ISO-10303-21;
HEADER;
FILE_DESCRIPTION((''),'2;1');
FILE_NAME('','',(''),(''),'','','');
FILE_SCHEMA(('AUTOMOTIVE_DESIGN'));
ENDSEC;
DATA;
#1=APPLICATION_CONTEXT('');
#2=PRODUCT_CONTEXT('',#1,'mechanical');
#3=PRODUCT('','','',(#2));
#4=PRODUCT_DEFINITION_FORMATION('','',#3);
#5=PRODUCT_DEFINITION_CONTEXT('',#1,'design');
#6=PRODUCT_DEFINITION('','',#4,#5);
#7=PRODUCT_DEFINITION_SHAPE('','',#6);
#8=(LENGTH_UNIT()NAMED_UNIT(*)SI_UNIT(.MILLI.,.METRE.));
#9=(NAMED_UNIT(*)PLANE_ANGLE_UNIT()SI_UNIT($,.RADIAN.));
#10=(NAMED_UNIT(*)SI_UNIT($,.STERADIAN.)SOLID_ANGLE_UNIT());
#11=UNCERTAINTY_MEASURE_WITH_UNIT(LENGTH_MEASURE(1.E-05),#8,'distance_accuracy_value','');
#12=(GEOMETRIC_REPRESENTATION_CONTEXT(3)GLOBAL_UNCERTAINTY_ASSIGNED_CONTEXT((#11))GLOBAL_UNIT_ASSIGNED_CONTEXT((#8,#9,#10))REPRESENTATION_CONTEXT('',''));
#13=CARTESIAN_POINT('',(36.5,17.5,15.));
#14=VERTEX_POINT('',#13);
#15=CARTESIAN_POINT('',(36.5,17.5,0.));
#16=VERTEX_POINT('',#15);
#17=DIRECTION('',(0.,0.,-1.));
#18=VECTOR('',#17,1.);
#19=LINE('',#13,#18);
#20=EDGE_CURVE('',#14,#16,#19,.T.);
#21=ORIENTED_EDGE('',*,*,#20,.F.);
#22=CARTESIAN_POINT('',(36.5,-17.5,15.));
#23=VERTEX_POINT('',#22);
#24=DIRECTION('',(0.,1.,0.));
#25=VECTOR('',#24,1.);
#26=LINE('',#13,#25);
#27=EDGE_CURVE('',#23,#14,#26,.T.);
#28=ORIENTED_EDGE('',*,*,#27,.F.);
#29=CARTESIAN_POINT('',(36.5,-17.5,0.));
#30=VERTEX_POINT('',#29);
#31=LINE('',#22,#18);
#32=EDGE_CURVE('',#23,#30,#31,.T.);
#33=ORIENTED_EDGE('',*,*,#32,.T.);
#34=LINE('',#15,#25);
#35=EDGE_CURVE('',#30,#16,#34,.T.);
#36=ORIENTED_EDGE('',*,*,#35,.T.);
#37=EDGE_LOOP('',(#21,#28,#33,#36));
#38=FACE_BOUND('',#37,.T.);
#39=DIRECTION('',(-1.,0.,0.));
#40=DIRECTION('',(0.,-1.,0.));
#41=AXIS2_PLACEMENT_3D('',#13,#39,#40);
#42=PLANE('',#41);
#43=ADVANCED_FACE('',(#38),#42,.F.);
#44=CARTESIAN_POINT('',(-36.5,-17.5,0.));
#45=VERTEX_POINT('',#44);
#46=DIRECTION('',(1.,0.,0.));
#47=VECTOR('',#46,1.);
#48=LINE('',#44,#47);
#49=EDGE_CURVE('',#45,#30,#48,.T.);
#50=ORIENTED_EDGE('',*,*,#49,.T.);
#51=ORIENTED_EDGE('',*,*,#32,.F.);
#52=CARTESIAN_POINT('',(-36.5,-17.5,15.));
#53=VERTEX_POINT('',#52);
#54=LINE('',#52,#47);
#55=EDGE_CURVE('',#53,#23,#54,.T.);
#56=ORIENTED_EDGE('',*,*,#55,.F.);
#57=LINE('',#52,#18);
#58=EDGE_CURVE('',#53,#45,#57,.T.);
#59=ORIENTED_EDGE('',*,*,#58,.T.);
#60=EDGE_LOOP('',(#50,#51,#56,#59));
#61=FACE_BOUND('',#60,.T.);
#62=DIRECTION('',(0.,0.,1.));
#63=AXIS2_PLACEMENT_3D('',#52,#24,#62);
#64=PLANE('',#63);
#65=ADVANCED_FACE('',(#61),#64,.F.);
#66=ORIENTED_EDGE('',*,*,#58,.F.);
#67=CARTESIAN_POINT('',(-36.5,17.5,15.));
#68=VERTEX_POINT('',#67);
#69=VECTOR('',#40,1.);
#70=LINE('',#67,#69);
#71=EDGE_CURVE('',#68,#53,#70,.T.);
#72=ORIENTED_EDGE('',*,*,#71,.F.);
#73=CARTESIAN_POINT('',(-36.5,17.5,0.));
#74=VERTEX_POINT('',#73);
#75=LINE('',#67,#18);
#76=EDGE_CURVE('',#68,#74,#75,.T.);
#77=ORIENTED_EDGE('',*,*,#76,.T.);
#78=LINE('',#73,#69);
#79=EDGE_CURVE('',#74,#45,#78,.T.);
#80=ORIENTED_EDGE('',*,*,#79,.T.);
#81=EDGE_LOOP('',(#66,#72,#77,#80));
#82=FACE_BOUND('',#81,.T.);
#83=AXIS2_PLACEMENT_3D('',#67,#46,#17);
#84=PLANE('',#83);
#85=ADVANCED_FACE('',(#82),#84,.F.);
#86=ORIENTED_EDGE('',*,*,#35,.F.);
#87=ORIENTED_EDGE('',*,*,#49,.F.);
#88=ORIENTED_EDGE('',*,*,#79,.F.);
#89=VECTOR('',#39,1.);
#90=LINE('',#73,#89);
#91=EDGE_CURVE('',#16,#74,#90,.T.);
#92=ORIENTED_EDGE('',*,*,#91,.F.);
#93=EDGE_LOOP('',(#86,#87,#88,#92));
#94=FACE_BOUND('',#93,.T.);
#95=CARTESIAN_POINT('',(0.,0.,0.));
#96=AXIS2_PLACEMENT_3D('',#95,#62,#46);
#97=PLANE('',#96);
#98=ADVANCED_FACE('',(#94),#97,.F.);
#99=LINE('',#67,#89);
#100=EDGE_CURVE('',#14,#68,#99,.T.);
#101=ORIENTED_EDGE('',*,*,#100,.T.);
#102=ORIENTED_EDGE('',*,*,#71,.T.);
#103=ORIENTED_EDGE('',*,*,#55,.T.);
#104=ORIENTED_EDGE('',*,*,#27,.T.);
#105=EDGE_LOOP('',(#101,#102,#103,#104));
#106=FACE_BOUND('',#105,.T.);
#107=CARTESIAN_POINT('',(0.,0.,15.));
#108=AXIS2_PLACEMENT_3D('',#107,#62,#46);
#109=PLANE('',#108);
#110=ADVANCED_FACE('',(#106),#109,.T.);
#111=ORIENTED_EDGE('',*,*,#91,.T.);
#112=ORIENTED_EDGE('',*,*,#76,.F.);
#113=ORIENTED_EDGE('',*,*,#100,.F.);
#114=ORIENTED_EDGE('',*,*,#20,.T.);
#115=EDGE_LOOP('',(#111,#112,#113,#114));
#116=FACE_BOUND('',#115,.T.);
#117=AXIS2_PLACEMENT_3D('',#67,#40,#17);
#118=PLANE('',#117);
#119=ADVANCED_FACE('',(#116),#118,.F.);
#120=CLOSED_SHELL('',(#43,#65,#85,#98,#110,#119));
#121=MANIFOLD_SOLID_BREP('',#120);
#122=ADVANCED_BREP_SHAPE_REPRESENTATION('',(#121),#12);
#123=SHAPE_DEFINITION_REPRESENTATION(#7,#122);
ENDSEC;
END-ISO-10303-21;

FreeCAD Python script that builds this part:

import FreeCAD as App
import Part
import Sketcher
from FreeCAD import Vector

doc = App.newDocument("Part")
body = doc.addObject("PartDesign::Body", "Body")

# Sketch on XY plane
sketch1 = doc.addObject("Sketcher::SketchObject", "Sketch")
body.addObject(sketch1)
sketch1.AttachmentSupport = (doc.XY_Plane, [""])
sketch1.MapMode = "FlatFace"
sketch1.addGeometry(Part.LineSegment(Vector(-36, 18, 0), Vector(-36, -18, 0)), False)
sketch1.addGeometry(Part.LineSegment(Vector(-36, -18, 0), Vector(36, -18, 0)), False)
sketch1.addGeometry(Part.LineSegment(Vector(36, -18, 0), Vector(36, 18, 0)), False)
sketch1.addGeometry(Part.LineSegment(Vector(36, 18, 0), Vector(-36, 18, 0)), False)
sketch1.addConstraint(Sketcher.Constraint("Coincident", 0, 2, 1, 1))
sketch1.addConstraint(Sketcher.Constraint("Coincident", 1, 2, 2, 1))
sketch1.addConstraint(Sketcher.Constraint("Coincident", 2, 2, 3, 1))
sketch1.addConstraint(Sketcher.Constraint("Coincident", 3, 2, 0, 1))
sketch1.addConstraint(Sketcher.Constraint("Vertical", 0))
sketch1.addConstraint(Sketcher.Constraint("Horizontal", 1))
sketch1.addConstraint(Sketcher.Constraint("Vertical", 2))
sketch1.addConstraint(Sketcher.Constraint("Horizontal", 3))
sketch1.addConstraint(Sketcher.Constraint("Symmetric", 0, 2, 2, 2, -1, 1))
sketch1.addConstraint(Sketcher.Constraint("DistanceX", 1, 1, 1, 2, 73.0))
sketch1.addConstraint(Sketcher.Constraint("DistanceY", 0, 2, 0, 1, 35.0))
pad1 = doc.addObject("PartDesign::Pad", "Pad")
body.addObject(pad1)
pad1.Profile = sketch1
pad1.Length = 15

doc.recompute()
